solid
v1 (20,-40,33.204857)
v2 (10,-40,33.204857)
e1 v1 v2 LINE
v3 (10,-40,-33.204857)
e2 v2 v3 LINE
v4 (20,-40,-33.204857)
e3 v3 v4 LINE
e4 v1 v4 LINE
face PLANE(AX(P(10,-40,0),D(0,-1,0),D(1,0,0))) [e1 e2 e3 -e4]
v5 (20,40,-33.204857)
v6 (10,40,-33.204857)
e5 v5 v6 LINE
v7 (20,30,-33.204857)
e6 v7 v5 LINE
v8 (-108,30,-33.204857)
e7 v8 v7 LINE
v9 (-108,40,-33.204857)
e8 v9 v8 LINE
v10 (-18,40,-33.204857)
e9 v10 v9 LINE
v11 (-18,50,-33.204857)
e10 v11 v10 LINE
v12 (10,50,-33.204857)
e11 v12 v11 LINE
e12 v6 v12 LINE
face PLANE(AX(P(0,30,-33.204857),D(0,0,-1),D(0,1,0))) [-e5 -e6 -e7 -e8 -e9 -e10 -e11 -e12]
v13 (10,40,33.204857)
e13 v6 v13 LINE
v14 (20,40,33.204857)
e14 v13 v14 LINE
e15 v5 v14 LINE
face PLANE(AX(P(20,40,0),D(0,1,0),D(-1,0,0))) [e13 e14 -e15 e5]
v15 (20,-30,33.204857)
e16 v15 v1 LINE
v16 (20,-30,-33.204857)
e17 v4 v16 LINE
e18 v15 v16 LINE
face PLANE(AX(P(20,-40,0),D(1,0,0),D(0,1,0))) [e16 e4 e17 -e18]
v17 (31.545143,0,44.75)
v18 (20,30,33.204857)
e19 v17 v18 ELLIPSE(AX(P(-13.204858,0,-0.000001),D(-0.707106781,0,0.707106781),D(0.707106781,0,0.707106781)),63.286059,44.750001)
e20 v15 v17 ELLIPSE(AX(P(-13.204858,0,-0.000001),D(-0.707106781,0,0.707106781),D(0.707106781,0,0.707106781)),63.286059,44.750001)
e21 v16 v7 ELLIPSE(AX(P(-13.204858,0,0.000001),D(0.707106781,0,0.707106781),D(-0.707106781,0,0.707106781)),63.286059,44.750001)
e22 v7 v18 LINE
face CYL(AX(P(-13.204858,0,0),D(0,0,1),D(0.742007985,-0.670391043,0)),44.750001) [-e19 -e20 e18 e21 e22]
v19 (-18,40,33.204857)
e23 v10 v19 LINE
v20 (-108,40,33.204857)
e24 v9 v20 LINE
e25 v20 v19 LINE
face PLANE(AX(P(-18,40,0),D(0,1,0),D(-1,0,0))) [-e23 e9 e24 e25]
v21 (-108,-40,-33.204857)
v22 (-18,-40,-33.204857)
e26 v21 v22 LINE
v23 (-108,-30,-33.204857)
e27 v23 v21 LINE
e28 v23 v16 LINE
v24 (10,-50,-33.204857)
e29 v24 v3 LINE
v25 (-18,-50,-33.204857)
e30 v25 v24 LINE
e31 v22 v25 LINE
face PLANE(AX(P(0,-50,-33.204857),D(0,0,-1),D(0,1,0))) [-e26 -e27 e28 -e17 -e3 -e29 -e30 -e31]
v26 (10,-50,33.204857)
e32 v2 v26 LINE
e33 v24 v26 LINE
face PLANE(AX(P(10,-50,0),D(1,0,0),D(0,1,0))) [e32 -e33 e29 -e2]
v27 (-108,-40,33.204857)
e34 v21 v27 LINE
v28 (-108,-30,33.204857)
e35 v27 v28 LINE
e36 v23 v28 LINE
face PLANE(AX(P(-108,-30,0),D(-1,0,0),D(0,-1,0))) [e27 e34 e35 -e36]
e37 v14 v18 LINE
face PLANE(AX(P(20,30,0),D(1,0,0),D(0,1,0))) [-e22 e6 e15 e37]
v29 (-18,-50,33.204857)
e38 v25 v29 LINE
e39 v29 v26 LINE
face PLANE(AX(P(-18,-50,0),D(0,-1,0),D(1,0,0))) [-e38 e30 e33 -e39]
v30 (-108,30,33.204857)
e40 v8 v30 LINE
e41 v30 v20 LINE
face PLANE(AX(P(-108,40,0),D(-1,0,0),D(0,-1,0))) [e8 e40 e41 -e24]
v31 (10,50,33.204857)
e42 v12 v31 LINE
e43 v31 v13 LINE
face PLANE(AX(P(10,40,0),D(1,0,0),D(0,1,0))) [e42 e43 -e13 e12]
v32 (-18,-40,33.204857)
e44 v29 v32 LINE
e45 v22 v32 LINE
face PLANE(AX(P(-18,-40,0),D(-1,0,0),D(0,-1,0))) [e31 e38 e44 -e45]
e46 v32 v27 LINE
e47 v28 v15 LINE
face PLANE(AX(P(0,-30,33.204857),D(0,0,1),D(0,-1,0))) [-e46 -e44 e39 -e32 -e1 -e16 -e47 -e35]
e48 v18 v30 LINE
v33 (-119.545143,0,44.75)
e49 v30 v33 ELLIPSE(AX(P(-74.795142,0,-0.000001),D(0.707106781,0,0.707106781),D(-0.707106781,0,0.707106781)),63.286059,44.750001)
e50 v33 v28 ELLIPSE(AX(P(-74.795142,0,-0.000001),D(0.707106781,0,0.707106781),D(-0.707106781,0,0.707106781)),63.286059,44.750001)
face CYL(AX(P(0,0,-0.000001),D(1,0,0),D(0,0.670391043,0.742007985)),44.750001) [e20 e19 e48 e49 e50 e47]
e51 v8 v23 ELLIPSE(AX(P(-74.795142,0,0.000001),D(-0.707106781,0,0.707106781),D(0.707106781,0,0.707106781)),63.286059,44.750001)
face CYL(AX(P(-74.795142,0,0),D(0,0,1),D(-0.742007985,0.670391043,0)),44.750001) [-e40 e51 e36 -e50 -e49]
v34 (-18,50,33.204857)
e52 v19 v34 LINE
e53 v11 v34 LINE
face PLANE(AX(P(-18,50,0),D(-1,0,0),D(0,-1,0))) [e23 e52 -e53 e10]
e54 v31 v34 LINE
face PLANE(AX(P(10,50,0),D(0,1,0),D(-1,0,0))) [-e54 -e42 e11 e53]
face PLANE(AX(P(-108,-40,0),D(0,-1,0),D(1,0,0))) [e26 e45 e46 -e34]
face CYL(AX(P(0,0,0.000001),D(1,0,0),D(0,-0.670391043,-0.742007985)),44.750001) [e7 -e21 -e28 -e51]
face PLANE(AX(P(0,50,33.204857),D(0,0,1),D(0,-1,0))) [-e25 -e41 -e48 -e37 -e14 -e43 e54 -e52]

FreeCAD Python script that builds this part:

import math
import FreeCAD as App
import Part
import Sketcher
Q = App.Units.Quantity

doc = App.newDocument("Part")
params = doc.addObject("Spreadsheet::Sheet", "Params")
for row, (alias, value) in enumerate([
    ("sketch1_width", "20 mm"),
    ("sketch1_radius", "44.750001 mm"),
    ("pad1_length", "300 mm"),
    ("sketch2_width", "10 mm"),
    ("sketch2_width2", "28 mm"),
    ("sketch2_width3", "90 mm"),
    ("sketch2_radius", "44.750001 mm"),
    ("pad2_length", "200 mm"),
], start=1):
    params.set(f"A{row}", alias)
    params.set(f"B{row}", "=" + value)
    params.setAlias(f"B{row}", alias)

body = doc.addObject("PartDesign::Body", "Body")

sketch1 = body.newObject("Sketcher::SketchObject", "Sketch")
sketch1.AttachmentSupport = (doc.getObject("YZ_Plane"), [""])
sketch1.MapMode = "FlatFace"
sketch1.addGeometry([
    Part.ArcOfCircle(Part.Circle(App.Vector(0, -0.000001, 0), App.Vector(0, 0, 1), 44.750001), math.radians(47.902747), math.radians(132.097253)),
    Part.LineSegment(App.Vector(-30, 33.204857, 0), App.Vector(-50, 33.204857, 0)),
    Part.LineSegment(App.Vector(-50, 33.204857, 0), App.Vector(-50, -33.204857, 0)),
    Part.LineSegment(App.Vector(-50, -33.204857, 0), App.Vector(-30, -33.204857, 0)),
    Part.ArcOfCircle(Part.Circle(App.Vector(0, 0.000001, 0), App.Vector(0, 0, 1), 44.750001), math.radians(-132.097253), math.radians(-47.902747)),
    Part.LineSegment(App.Vector(30, -33.204857, 0), App.Vector(50, -33.204857, 0)),
    Part.LineSegment(App.Vector(50, -33.204857, 0), App.Vector(50, 33.204857, 0)),
    Part.LineSegment(App.Vector(50, 33.204857, 0), App.Vector(30, 33.204857, 0)),
], False)
sketch1.addConstraint([
    Sketcher.Constraint("Coincident", 0, 2, 1, 1),
    Sketcher.Constraint("Coincident", 1, 2, 2, 1),
    Sketcher.Constraint("Coincident", 2, 2, 3, 1),
    Sketcher.Constraint("Coincident", 3, 2, 4, 1),
    Sketcher.Constraint("Coincident", 4, 2, 5, 1),
    Sketcher.Constraint("Coincident", 5, 2, 6, 1),
    Sketcher.Constraint("Coincident", 6, 2, 7, 1),
    Sketcher.Constraint("Coincident", 7, 2, 0, 1),
    Sketcher.Constraint("Horizontal", 1),
    Sketcher.Constraint("Vertical", 2),
    Sketcher.Constraint("Horizontal", 3),
    Sketcher.Constraint("Horizontal", 5),
    Sketcher.Constraint("Vertical", 6),
    Sketcher.Constraint("Horizontal", 7),
    Sketcher.Constraint("Coincident", 0, 3, -1, 1),
    Sketcher.Constraint("Coincident", 4, 3, -1, 1),
    Sketcher.Constraint("Equal", 0, 4),
    Sketcher.Constraint("Symmetric", 1, 2, 5, 2, -1, 1),
    Sketcher.Constraint("Horizontal", 3, 2, 4, 2),
    Sketcher.Constraint("Horizontal", 1, 2, 6, 2),
    Sketcher.Constraint("DistanceX", 1, 2, 1, 1, Q("20 mm")),
    Sketcher.Constraint("Radius", 0, Q("44.750001 mm")),
    Sketcher.Constraint("DistanceX", 0, 2, -1, 1, Q("30 mm")),
])
sketch1.setExpression("Constraints[20]", "Params.sketch1_width")
sketch1.setExpression("Constraints[21]", "Params.sketch1_radius")
pad1 = body.newObject("PartDesign::Pad", "Pad")
pad1.Profile = sketch1
pad1.setExpression("Length", "Params.pad1_length")
pad1.Midplane = True
body2 = doc.addObject("PartDesign::Body", "Body001")

sketch2 = body2.newObject("Sketcher::SketchObject", "Sketch001")
sketch2.AttachmentSupport = (doc.getObject("XY_Plane001"), [""])
sketch2.MapMode = "FlatFace"
sketch2.addGeometry([
    Part.ArcOfCircle(Part.Circle(App.Vector(-13.204858, 0, 0), App.Vector(0, 0, 1), 44.750001), math.radians(-42.097253), math.radians(42.097253)),
    Part.LineSegment(App.Vector(20, 30, 0), App.Vector(20, 40, 0)),
    Part.LineSegment(App.Vector(20, 40, 0), App.Vector(10, 40, 0)),
    Part.LineSegment(App.Vector(10, 40, 0), App.Vector(10, 50, 0)),
    Part.LineSegment(App.Vector(10, 50, 0), App.Vector(-18, 50, 0)),
    Part.LineSegment(App.Vector(-18, 50, 0), App.Vector(-18, 40, 0)),
    Part.LineSegment(App.Vector(-18, 40, 0), App.Vector(-108, 40, 0)),
    Part.LineSegment(App.Vector(-108, 40, 0), App.Vector(-108, 30, 0)),
    Part.ArcOfCircle(Part.Circle(App.Vector(-74.795142, 0, 0), App.Vector(0, 0, 1), 44.750001), math.radians(137.902747), math.radians(222.097253)),
    Part.LineSegment(App.Vector(-108, -30, 0), App.Vector(-108, -40, 0)),
    Part.LineSegment(App.Vector(-108, -40, 0), App.Vector(-18, -40, 0)),
    Part.LineSegment(App.Vector(-18, -40, 0), App.Vector(-18, -50, 0)),
    Part.LineSegment(App.Vector(-18, -50, 0), App.Vector(10, -50, 0)),
    Part.LineSegment(App.Vector(10, -50, 0), App.Vector(10, -40, 0)),
    Part.LineSegment(App.Vector(10, -40, 0), App.Vector(20, -40, 0)),
    Part.LineSegment(App.Vector(20, -40, 0), App.Vector(20, -30, 0)),
], False)
sketch2.addConstraint([
    Sketcher.Constraint("Coincident", 0, 2, 1, 1),
    Sketcher.Constraint("Coincident", 1, 2, 2, 1),
    Sketcher.Constraint("Coincident", 2, 2, 3, 1),
    Sketcher.Constraint("Coincident", 3, 2, 4, 1),
    Sketcher.Constraint("Coincident", 4, 2, 5, 1),
    Sketcher.Constraint("Coincident", 5, 2, 6, 1),
    Sketcher.Constraint("Coincident", 6, 2, 7, 1),
    Sketcher.Constraint("Coincident", 7, 2, 8, 1),
    Sketcher.Constraint("Coincident", 8, 2, 9, 1),
    Sketcher.Constraint("Coincident", 9, 2, 10, 1),
    Sketcher.Constraint("Coincident", 10, 2, 11, 1),
    Sketcher.Constraint("Coincident", 11, 2, 12, 1),
    Sketcher.Constraint("Coincident", 12, 2, 13, 1),
    Sketcher.Constraint("Coincident", 13, 2, 14, 1),
    Sketcher.Constraint("Coincident", 14, 2, 15, 1),
    Sketcher.Constraint("Coincident", 15, 2, 0, 1),
    Sketcher.Constraint("Vertical", 1),
    Sketcher.Constraint("Horizontal", 2),
    Sketcher.Constraint("Vertical", 3),
    Sketcher.Constraint("Horizontal", 4),
    Sketcher.Constraint("Vertical", 5),
    Sketcher.Constraint("Horizontal", 6),
    Sketcher.Constraint("Vertical", 7),
    Sketcher.Constraint("Vertical", 9),
    Sketcher.Constraint("Horizontal", 10),
    Sketcher.Constraint("Vertical", 11),
    Sketcher.Constraint("Horizontal", 12),
    Sketcher.Constraint("Vertical", 13),
    Sketcher.Constraint("Horizontal", 14),
    Sketcher.Constraint("Vertical", 15),
    Sketcher.Constraint("Equal", 0, 8),
    Sketcher.Constraint("Symmetric", 7, 2, 8, 2, -1),
    Sketcher.Constraint("Symmetric", 5, 2, 10, 2, -1),
    Sketcher.Constraint("Symmetric", 3, 2, 12, 2, -1),
    Sketcher.Constraint("Symmetric", 1, 2, 14, 2, -1),
    Sketcher.Constraint("PointOnObject", 0, 3, -1),
    Sketcher.Constraint("Horizontal", 2, 2, 5, 2),
    Sketcher.Constraint("Horizontal", 0, 2, 7, 2),
    Sketcher.Constraint("Equal", 14, 1),
    Sketcher.Constraint("Equal", 1, 3),
    Sketcher.Constraint("DistanceX", 2, 2, 2, 1, Q("10 mm")),
    Sketcher.Constraint("DistanceX", 4, 2, 4, 1, Q("28 mm")),
    Sketcher.Constraint("DistanceX", 6, 2, 6, 1, Q("90 mm")),
    Sketcher.Constraint("Radius", 0, Q("44.750001 mm")),
    Sketcher.Constraint("DistanceX", -1, 1, 0, 2, Q("20 mm")),
    Sketcher.Constraint("DistanceY", -1, 1, 0, 2, Q("30 mm")),
])
sketch2.setExpression("Constraints[40]", "Params.sketch2_width")
sketch2.setExpression("Constraints[41]", "Params.sketch2_width2")
sketch2.setExpression("Constraints[42]", "Params.sketch2_width3")
sketch2.setExpression("Constraints[43]", "Params.sketch2_radius")
pad2 = body2.newObject("PartDesign::Pad", "Pad001")
pad2.Profile = sketch2
pad2.setExpression("Length", "Params.pad2_length")
pad2.Midplane = True
doc.recompute()

boolean = body2.newObject("PartDesign::Boolean", "Boolean")
boolean.Type = "Common"
boolean.addObjects([body])

doc.recompute()
